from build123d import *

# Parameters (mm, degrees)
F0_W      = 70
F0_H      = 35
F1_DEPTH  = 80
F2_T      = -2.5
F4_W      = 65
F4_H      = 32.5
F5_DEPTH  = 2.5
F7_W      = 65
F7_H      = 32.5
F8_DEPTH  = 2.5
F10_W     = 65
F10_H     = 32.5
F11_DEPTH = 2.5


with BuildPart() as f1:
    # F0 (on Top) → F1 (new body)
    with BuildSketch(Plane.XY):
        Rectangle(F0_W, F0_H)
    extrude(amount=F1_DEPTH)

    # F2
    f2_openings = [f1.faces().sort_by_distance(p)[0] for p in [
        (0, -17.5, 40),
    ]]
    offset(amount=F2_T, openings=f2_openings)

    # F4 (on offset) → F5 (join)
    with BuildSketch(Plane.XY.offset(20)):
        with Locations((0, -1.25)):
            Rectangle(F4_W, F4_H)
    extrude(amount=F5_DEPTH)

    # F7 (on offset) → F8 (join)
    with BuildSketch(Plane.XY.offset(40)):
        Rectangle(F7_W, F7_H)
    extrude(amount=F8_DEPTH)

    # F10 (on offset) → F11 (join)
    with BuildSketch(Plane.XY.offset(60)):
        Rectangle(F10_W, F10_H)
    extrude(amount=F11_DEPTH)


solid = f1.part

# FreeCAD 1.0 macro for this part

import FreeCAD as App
import Part
import Sketcher
from FreeCAD import Vector


def faces_at(feature, points):
    """Names of the faces that lie closest to the given points."""
    faces = feature.Shape.Faces
    near = lambda p: min(range(len(faces)), key=lambda i: faces[i].distToShape(Part.Vertex(*p))[0])
    return sorted({f"Face{near(p) + 1}" for p in points})


def add_polygon(sketch, points):
    """Adds a closed chain of lines whose ends are joined by coincident constraints."""
    first, n = sketch.GeometryCount, len(points)
    for a, b in zip(points, points[1:] + points[:1]):
        sketch.addGeometry(Part.LineSegment(App.Vector(*a, 0), App.Vector(*b, 0)), False)
    for i in range(n):
        sketch.addConstraint(Sketcher.Constraint("Coincident", first + i, 2, first + (i + 1) % n, 1))

doc = App.newDocument("Part")
params = doc.addObject("Spreadsheet::Sheet", "Params")
for row, (alias, value) in enumerate([
    ("sketch1_width", "70 mm"),
    ("sketch1_height", "35 mm"),
    ("pad1_length", "80 mm"),
    ("thickness_wall", "2.5 mm"),
    ("sketch2_width", "65 mm"),
    ("sketch2_height", "32.5 mm"),
    ("pad2_length", "2.5 mm"),
    ("sketch3_width", "65 mm"),
    ("sketch3_height", "32.5 mm"),
    ("pad3_length", "2.5 mm"),
    ("sketch4_width", "65 mm"),
    ("sketch4_height", "32.5 mm"),
    ("pad4_length", "2.5 mm"),
], start=1):
    params.set(f"A{row}", alias)
    params.set(f"B{row}", "=" + value)
    params.setAlias(f"B{row}", alias)

body = doc.addObject("PartDesign::Body", "Body")

# Sketch on XY plane
sketch1 = body.newObject("Sketcher::SketchObject", "Sketch")
sketch1.AttachmentSupport = (doc.getObject("XY_Plane"), [""])
sketch1.MapMode = "FlatFace"
add_polygon(sketch1, [(-35, 18), (-35, -18), (35, -18), (35, 18)])  # lines 0-3
sketch1.addConstraint([
    Sketcher.Constraint("Vertical", 0),
    Sketcher.Constraint("Horizontal", 1),
    Sketcher.Constraint("Vertical", 2),
    Sketcher.Constraint("Horizontal", 3),
    Sketcher.Constraint("Symmetric", 0, 2, 2, 2, -1, 1),
    Sketcher.Constraint("DistanceX", 1, 1, 1, 2, 70.0),
    Sketcher.Constraint("DistanceY", 0, 2, 0, 1, 35.0),
])
sketch1.setExpression("Constraints[9]", "Params.sketch1_width")
sketch1.setExpression("Constraints[10]", "Params.sketch1_height")
pad1 = body.newObject("PartDesign::Pad", "Pad")
pad1.Profile = sketch1
pad1.setExpression("Length", "Params.pad1_length")
doc.recompute()

thickness = body.newObject("PartDesign::Thickness", "Thickness")
thickness.Base = (pad1, faces_at(pad1, [(0, -17.5, 40)]))
thickness.setExpression("Value", "Params.thickness_wall")
thickness.Reversed = True
thickness.Join = "Arc"

# Sketch on XY plane
sketch2 = body.newObject("Sketcher::SketchObject", "Sketch001")
sketch2.AttachmentSupport = (doc.getObject("XY_Plane"), [""])
sketch2.MapMode = "FlatFace"
sketch2.AttachmentOffset = App.Placement(Vector(0, 0, 20), App.Rotation())
add_polygon(sketch2, [(-32, 15), (-32, -18), (32, -18), (32, 15)])  # lines 0-3
sketch2.addConstraint([
    Sketcher.Constraint("Vertical", 0),
    Sketcher.Constraint("Horizontal", 1),
    Sketcher.Constraint("Vertical", 2),
    Sketcher.Constraint("Horizontal", 3),
    Sketcher.Constraint("DistanceX", 1, 1, 1, 2, 65.0),
    Sketcher.Constraint("DistanceY", 0, 2, 0, 1, 32.5),
    Sketcher.Constraint("DistanceY", -1, 1, 2, 2, 15.0),
    Sketcher.Constraint("DistanceX", 0, 2, -1, 1, 32.5),
])
sketch2.setExpression("Constraints[8]", "Params.sketch2_width")
sketch2.setExpression("Constraints[9]", "Params.sketch2_height")
pad2 = body.newObject("PartDesign::Pad", "Pad001")
pad2.Profile = sketch2
pad2.setExpression("Length", "Params.pad2_length")

# Sketch on XY plane
sketch3 = body.newObject("Sketcher::SketchObject", "Sketch002")
sketch3.AttachmentSupport = (doc.getObject("XY_Plane"), [""])
sketch3.MapMode = "FlatFace"
sketch3.AttachmentOffset = App.Placement(Vector(0, 0, 40), App.Rotation())
add_polygon(sketch3, [(-32, 16), (-32, -16), (32, -16), (32, 16)])  # lines 0-3
sketch3.addConstraint([
    Sketcher.Constraint("Vertical", 0),
    Sketcher.Constraint("Horizontal", 1),
    Sketcher.Constraint("Vertical", 2),
    Sketcher.Constraint("Horizontal", 3),
    Sketcher.Constraint("Symmetric", 0, 2, 2, 2, -1, 1),
    Sketcher.Constraint("DistanceX", 1, 1, 1, 2, 65.0),
    Sketcher.Constraint("DistanceY", 0, 2, 0, 1, 32.5),
])
sketch3.setExpression("Constraints[9]", "Params.sketch3_width")
sketch3.setExpression("Constraints[10]", "Params.sketch3_height")
pad3 = body.newObject("PartDesign::Pad", "Pad002")
pad3.Profile = sketch3
pad3.setExpression("Length", "Params.pad3_length")

# Sketch on XY plane
sketch4 = body.newObject("Sketcher::SketchObject", "Sketch003")
sketch4.AttachmentSupport = (doc.getObject("XY_Plane"), [""])
sketch4.MapMode = "FlatFace"
sketch4.AttachmentOffset = App.Placement(Vector(0, 0, 60), App.Rotation())
add_polygon(sketch4, [(-32, 16), (-32, -16), (32, -16), (32, 16)])  # lines 0-3
sketch4.addConstraint([
    Sketcher.Constraint("Vertical", 0),
    Sketcher.Constraint("Horizontal", 1),
    Sketcher.Constraint("Vertical", 2),
    Sketcher.Constraint("Horizontal", 3),
    Sketcher.Constraint("Symmetric", 0, 2, 2, 2, -1, 1),
    Sketcher.Constraint("DistanceX", 1, 1, 1, 2, 65.0),
    Sketcher.Constraint("DistanceY", 0, 2, 0, 1, 32.5),
])
sketch4.setExpression("Constraints[9]", "Params.sketch4_width")
sketch4.setExpression("Constraints[10]", "Params.sketch4_height")
pad4 = body.newObject("PartDesign::Pad", "Pad003")
pad4.Profile = sketch4
pad4.setExpression("Length", "Params.pad4_length")

doc.recompute()
